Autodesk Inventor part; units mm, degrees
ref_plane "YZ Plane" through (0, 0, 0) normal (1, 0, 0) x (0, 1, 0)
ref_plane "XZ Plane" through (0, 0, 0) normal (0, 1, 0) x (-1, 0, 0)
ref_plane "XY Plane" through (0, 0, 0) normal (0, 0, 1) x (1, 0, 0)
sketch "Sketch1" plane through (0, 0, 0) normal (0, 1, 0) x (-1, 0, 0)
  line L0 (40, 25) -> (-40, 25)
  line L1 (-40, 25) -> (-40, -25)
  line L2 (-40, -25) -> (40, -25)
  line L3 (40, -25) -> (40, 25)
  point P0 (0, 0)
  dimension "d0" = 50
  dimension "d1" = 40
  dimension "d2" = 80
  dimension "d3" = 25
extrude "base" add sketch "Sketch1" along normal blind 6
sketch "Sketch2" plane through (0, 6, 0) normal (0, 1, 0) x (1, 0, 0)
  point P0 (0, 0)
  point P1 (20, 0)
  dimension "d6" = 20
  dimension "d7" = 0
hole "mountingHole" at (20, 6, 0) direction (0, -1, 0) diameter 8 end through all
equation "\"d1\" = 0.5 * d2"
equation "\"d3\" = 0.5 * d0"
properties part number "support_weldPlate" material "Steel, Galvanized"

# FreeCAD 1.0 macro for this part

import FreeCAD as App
import Part
import Sketcher


def add_polygon(sketch, points):
    """Adds a closed chain of lines whose ends are joined by coincident constraints."""
    first, n = sketch.GeometryCount, len(points)
    for a, b in zip(points, points[1:] + points[:1]):
        sketch.addGeometry(Part.LineSegment(App.Vector(*a, 0), App.Vector(*b, 0)), False)
    for i in range(n):
        sketch.addConstraint(Sketcher.Constraint("Coincident", first + i, 2, first + (i + 1) % n, 1))

doc = App.newDocument("Part")
body = doc.addObject("PartDesign::Body", "Body")

# Sketch on XZ plane
sketch1 = body.newObject("Sketcher::SketchObject", "Sketch")
sketch1.AttachmentSupport = (doc.getObject("XZ_Plane"), [""])
sketch1.MapMode = "FlatFace"
add_polygon(sketch1, [(-40, -25), (-40, 25), (40, 25), (40, -25)])  # lines 0-3
sketch1.addConstraint(Sketcher.Constraint("Vertical", 0))
sketch1.addConstraint(Sketcher.Constraint("Horizontal", 1))
sketch1.addConstraint(Sketcher.Constraint("Vertical", 2))
sketch1.addConstraint(Sketcher.Constraint("Horizontal", 3))
sketch1.addConstraint(Sketcher.Constraint("Symmetric", 0, 2, 2, 2, -1, 1))
sketch1.addConstraint(Sketcher.Constraint("DistanceX", 1, 1, 1, 2, 80.0))
sketch1.addConstraint(Sketcher.Constraint("DistanceY", 0, 1, 0, 2, 50.0))
pad1 = body.newObject("PartDesign::Pad", "Pad")
pad1.Profile = sketch1
pad1.Length = 6
pad1.Reversed = True

# Sketch on XZ plane
sketch2 = body.newObject("Sketcher::SketchObject", "Sketch001")
sketch2.AttachmentSupport = (doc.getObject("XZ_Plane"), [""])
sketch2.MapMode = "FlatFace"
sketch2.AttachmentOffset = App.Placement(App.Vector(0, 0, -6), App.Rotation())
sketch2.addGeometry(Part.Circle(App.Vector(20, 0, 0), App.Vector(0, 0, 1), 4), False)
sketch2.addConstraint(Sketcher.Constraint("PointOnObject", 0, 3, -1))
sketch2.addConstraint(Sketcher.Constraint("Diameter", 0, 8.0))
sketch2.addConstraint(Sketcher.Constraint("DistanceX", -1, 1, 0, 3, 20.0))
doc.recompute()
hole = body.newObject("PartDesign::Hole", "Hole")
hole.Profile = sketch2
hole.ThreadType = "None"
hole.Diameter = 8
hole.DepthType = "ThroughAll"
hole.Reversed = True

doc.recompute()
